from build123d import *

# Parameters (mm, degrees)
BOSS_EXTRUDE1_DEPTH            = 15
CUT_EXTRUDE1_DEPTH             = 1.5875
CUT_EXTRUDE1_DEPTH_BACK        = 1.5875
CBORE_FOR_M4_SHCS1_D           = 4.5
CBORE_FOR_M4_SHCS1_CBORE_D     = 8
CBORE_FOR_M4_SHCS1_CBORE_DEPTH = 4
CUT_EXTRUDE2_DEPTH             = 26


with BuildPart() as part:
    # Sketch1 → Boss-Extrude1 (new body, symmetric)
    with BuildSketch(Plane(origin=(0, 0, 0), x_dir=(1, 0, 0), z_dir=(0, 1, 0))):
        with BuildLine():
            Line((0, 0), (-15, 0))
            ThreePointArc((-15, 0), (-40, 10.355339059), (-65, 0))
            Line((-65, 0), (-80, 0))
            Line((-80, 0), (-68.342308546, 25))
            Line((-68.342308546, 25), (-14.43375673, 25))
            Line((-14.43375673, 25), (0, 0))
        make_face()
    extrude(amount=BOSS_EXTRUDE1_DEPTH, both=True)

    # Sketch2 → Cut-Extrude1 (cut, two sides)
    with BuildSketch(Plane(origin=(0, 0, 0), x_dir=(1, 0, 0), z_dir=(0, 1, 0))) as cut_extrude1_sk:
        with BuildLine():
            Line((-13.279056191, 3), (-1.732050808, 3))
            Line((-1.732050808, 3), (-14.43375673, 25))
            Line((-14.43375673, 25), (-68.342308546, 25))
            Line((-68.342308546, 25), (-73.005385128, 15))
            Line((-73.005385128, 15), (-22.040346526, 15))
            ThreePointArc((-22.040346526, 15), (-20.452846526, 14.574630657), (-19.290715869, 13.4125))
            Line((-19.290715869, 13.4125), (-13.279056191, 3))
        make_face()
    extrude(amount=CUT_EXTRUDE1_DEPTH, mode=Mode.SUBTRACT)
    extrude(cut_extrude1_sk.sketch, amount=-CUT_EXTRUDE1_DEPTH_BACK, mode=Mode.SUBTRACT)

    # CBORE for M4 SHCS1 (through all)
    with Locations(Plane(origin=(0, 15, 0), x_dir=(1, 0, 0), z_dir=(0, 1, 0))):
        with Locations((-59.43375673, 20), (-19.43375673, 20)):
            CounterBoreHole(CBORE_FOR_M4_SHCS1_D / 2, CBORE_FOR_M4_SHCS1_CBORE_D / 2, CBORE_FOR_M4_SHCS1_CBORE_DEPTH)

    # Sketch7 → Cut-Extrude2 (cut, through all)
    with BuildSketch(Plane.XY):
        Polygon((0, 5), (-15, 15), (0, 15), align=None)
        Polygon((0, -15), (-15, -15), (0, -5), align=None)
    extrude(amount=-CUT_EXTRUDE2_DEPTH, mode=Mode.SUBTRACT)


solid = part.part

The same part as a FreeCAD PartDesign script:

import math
import FreeCAD as App
import Part
import Sketcher
from FreeCAD import Vector
Q = App.Units.Quantity

doc = App.newDocument("Part")
body = doc.addObject("PartDesign::Body", "Body")

sketch1 = body.newObject("Sketcher::SketchObject", "Sketch")
sketch1.AttachmentSupport = (doc.getObject("XZ_Plane"), [""])
sketch1.MapMode = "FlatFace"
sketch1.addGeometry([
    Part.LineSegment(Vector(-15, 0, 0), Vector(0, 0, 0)),
    Part.LineSegment(Vector(0, 0, 0), Vector(-14, -25, 0)),
    Part.LineSegment(Vector(-14, -25, 0), Vector(-68, -25, 0)),
    Part.LineSegment(Vector(-68, -25, 0), Vector(-80, 0, 0)),
    Part.LineSegment(Vector(-80, 0, 0), Vector(-65, 0, 0)),
    Part.ArcOfCircle(Part.Circle(Vector(-40, 25, 0), Vector(0, 0, 1), 35), math.radians(-135), math.radians(-45)),
], False)
sketch1.addConstraint([
    Sketcher.Constraint("Coincident", 0, 2, 1, 1),
    Sketcher.Constraint("Coincident", 1, 2, 2, 1),
    Sketcher.Constraint("Coincident", 2, 2, 3, 1),
    Sketcher.Constraint("Coincident", 3, 2, 4, 1),
    Sketcher.Constraint("Coincident", 4, 2, 5, 1),
    Sketcher.Constraint("Coincident", 5, 2, 0, 1),
    Sketcher.Constraint("Horizontal", 0),
    Sketcher.Constraint("Horizontal", 2),
    Sketcher.Constraint("Horizontal", 4),
    Sketcher.Constraint("Coincident", 0, 2, -1, 1),
    Sketcher.Constraint("PointOnObject", 3, 2, -1),
    Sketcher.Constraint("Equal", 0, 4),
    Sketcher.Constraint("DistanceX", 0, 1, 0, 2, Q("15 mm")),
    Sketcher.Constraint("Angle", 1, Q("-120 deg")),
    Sketcher.Constraint("Angle", 3, Q("115 deg")),
    Sketcher.Constraint("DistanceX", 5, 3, -1, 1, Q("40 mm")),
    Sketcher.Constraint("DistanceY", -1, 1, 5, 3, Q("25 mm")),
    Sketcher.Constraint("DistanceY", 1, 2, -1, 1, Q("25 mm")),
])
pad1 = body.newObject("PartDesign::Pad", "Pad")
pad1.Profile = sketch1
pad1.Length = 30
pad1.Midplane = True

sketch2 = body.newObject("Sketcher::SketchObject", "Sketch001")
sketch2.AttachmentSupport = (doc.getObject("XZ_Plane"), [""])
sketch2.MapMode = "FlatFace"
sketch2.addGeometry([
    Part.LineSegment(Vector(-13.3, -3, 0), Vector(-1.7, -3, 0)),
    Part.LineSegment(Vector(-1.7, -3, 0), Vector(-14.4, -25, 0)),
    Part.LineSegment(Vector(-14.4, -25, 0), Vector(-68.3, -25, 0)),
    Part.LineSegment(Vector(-68.3, -25, 0), Vector(-73, -15, 0)),
    Part.LineSegment(Vector(-73, -15, 0), Vector(-22, -15, 0)),
    Part.ArcOfCircle(Part.Circle(Vector(-22, -11.8, 0), Vector(0, 0, 1), 3.2), math.radians(-90), math.radians(-30)),
    Part.LineSegment(Vector(-19.3, -13.4, 0), Vector(-13.3, -3, 0)),
], False)
sketch2.addConstraint([
    Sketcher.Constraint("Coincident", 0, 2, 1, 1),
    Sketcher.Constraint("Coincident", 1, 2, 2, 1),
    Sketcher.Constraint("Coincident", 2, 2, 3, 1),
    Sketcher.Constraint("Coincident", 3, 2, 4, 1),
    Sketcher.Constraint("Tangent", 4, 2, 5, 1),
    Sketcher.Constraint("Tangent", 5, 2, 6, 1),
    Sketcher.Constraint("Coincident", 6, 2, 0, 1),
    Sketcher.Constraint("Horizontal", 0),
    Sketcher.Constraint("Horizontal", 2),
    Sketcher.Constraint("Horizontal", 4),
    Sketcher.Constraint("Parallel", 1, 6),
    Sketcher.Constraint("Angle", 1, Q("-120 deg")),
    Sketcher.Constraint("Angle", 3, Q("115 deg")),
    Sketcher.Constraint("DistanceY", 0, 2, -1, 1, Q("3 mm")),
    Sketcher.Constraint("DistanceY", 1, 2, -1, 1, Q("25 mm")),
    Sketcher.Constraint("DistanceY", 3, 2, -1, 1, Q("15 mm")),
    Sketcher.Constraint("Radius", 5, Q("3.175 mm")),
    Sketcher.Constraint("DistanceX", 2, 2, 2, 1, Q("53.908552 mm")),
    Sketcher.Constraint("DistanceX", 4, 1, 4, 2, Q("50.965039 mm")),
    Sketcher.Constraint("DistanceX", 0, 2, -1, 1, Q("1.732051 mm")),
])
pocket1 = body.newObject("PartDesign::Pocket", "Pocket")
pocket1.Profile = sketch2
pocket1.Type = "TwoLengths"
pocket1.Length = 1.5875
pocket1.Length2 = 1.5875

sketch3 = body.newObject("Sketcher::SketchObject", "Sketch002")
sketch3.AttachmentSupport = (doc.getObject("XZ_Plane"), [""])
sketch3.MapMode = "FlatFace"
sketch3.AttachmentOffset = App.Placement(Vector(0, 0, -15), App.Rotation())
sketch3.addGeometry([
    Part.Circle(Vector(-59.4, -20, 0), Vector(0, 0, 1), 2.2),
    Part.Circle(Vector(-19.4, -20, 0), Vector(0, 0, 1), 2.2),
], False)
sketch3.addConstraint([
    Sketcher.Constraint("Equal", 0, 1),
    Sketcher.Constraint("Horizontal", 0, 3, 1, 3),
    Sketcher.Constraint("Diameter", 0, Q("4.5 mm")),
    Sketcher.Constraint("DistanceY", 0, 3, -1, 1, Q("20 mm")),
    Sketcher.Constraint("DistanceX", 0, 3, 1, 3, Q("40 mm")),
    Sketcher.Constraint("DistanceX", 0, 3, -1, 1, Q("59.433757 mm")),
])
doc.recompute()
hole = body.newObject("PartDesign::Hole", "Hole")
hole.Profile = sketch3
hole.ThreadType = "None"
hole.Diameter = 4.5
hole.DepthType = "ThroughAll"
hole.HoleCutType = "Counterbore"
hole.HoleCutDiameter = 8
hole.HoleCutDepth = 4
hole.Reversed = True

sketch4 = body.newObject("Sketcher::SketchObject", "Sketch003")
sketch4.AttachmentSupport = (doc.getObject("XY_Plane"), [""])
sketch4.MapMode = "FlatFace"
sketch4.addGeometry([
    Part.LineSegment(Vector(-15, 15, 0), Vector(0, 5, 0)),
    Part.LineSegment(Vector(0, 5, 0), Vector(0, 15, 0)),
    Part.LineSegment(Vector(0, 15, 0), Vector(-15, 15, 0)),
    Part.LineSegment(Vector(-15, -15, 0), Vector(0, -15, 0)),
    Part.LineSegment(Vector(0, -15, 0), Vector(0, -5, 0)),
    Part.LineSegment(Vector(0, -5, 0), Vector(-15, -15, 0)),
], False)
sketch4.addConstraint([
    Sketcher.Constraint("Coincident", 0, 2, 1, 1),
    Sketcher.Constraint("Coincident", 1, 2, 2, 1),
    Sketcher.Constraint("Coincident", 2, 2, 0, 1),
    Sketcher.Constraint("Coincident", 3, 2, 4, 1),
    Sketcher.Constraint("Coincident", 4, 2, 5, 1),
    Sketcher.Constraint("Coincident", 5, 2, 3, 1),
    Sketcher.Constraint("Vertical", 1),
    Sketcher.Constraint("Horizontal", 2),
    Sketcher.Constraint("Horizontal", 3),
    Sketcher.Constraint("Vertical", 4),
    Sketcher.Constraint("Symmetric", 1, 2, 3, 2, -1, 1),
    Sketcher.Constraint("Symmetric", 0, 2, 4, 2, -1),
    Sketcher.Constraint("Vertical", 2, 2, 5, 2),
    Sketcher.Constraint("DistanceX", 2, 2, 2, 1, Q("15 mm")),
    Sketcher.Constraint("DistanceY", 1, 1, 1, 2, Q("10 mm")),
    Sketcher.Constraint("DistanceY", -1, 1, 0, 2, Q("5 mm")),
])
pocket2 = body.newObject("PartDesign::Pocket", "Pocket001")
pocket2.Profile = sketch4
pocket2.Type = "ThroughAll"

doc.recompute()
